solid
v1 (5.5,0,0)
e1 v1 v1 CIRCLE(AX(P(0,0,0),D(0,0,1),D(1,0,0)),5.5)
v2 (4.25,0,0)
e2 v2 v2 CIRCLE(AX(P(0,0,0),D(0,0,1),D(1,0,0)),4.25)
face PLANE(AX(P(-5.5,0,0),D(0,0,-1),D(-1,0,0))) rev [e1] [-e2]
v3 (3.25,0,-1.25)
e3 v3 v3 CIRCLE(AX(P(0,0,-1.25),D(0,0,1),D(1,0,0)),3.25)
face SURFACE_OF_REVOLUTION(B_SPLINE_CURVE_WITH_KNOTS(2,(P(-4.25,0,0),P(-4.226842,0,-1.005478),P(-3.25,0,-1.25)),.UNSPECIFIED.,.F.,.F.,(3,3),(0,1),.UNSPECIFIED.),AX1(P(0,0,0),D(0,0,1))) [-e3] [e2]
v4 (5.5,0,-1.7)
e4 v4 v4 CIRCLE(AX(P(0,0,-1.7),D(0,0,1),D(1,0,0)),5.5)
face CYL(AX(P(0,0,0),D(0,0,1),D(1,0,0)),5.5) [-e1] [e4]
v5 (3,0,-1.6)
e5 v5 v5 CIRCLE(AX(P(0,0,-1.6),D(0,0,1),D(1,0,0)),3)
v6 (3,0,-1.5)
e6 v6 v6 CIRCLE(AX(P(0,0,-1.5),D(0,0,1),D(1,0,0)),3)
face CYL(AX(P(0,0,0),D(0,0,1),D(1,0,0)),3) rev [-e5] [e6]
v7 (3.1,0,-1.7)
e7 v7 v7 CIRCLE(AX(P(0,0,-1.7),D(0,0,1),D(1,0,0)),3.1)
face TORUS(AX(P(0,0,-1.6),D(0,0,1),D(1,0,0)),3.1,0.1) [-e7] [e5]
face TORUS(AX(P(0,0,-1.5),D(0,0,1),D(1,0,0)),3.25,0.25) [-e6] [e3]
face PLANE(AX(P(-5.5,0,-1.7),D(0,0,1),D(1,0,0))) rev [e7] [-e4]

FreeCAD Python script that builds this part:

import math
import FreeCAD as App
import Part
import Sketcher

V = App.Vector

doc = App.newDocument("Part")
body = doc.addObject("PartDesign::Body", "Body")

# Sketch on XZ plane
sketch1 = doc.addObject("Sketcher::SketchObject", "Sketch")
body.addObject(sketch1)
sketch1.AttachmentSupport = (doc.XZ_Plane, [""])
sketch1.MapMode = "FlatFace"
sketch1.addGeometry([
    Part.LineSegment(V(-5.5, -1.7, 0), V(-5.5, 0, 0)),  # 0
    Part.LineSegment(V(-5.5, 0, 0), V(-4.25, 0, 0)),  # 1
    Part.BSplineCurve([V(-4.25, 0, 0), V(-4.226842, -1.005478, 0), V(-3.25, -1.25, 0)], [3, 3], [0, 1], False, 2, [1, 1, 1], False),  # 2
    Part.ArcOfCircle(Part.Circle(V(-3.25, -1.5, 0), V(0, 0, 1), 0.25), math.radians(0), math.radians(90)),  # 3
    Part.LineSegment(V(-3, -1.5, 0), V(-3, -1.6, 0)),  # 4
    Part.ArcOfCircle(Part.Circle(V(-3.1, -1.6, 0), V(0, 0, 1), 0.1), math.radians(-90), math.radians(0)),  # 5
    Part.LineSegment(V(-3.1, -1.7, 0), V(-5.5, -1.7, 0)),  # 6
], False)
sketch1.addConstraint([
    Sketcher.Constraint("Block", 2),
    Sketcher.Constraint("Coincident", 0, 2, 1, 1),
    Sketcher.Constraint("Coincident", 1, 2, 2, 1),
    Sketcher.Constraint("Coincident", 2, 2, 3, 2),
    Sketcher.Constraint("Tangent", 3, 1, 4, 1),
    Sketcher.Constraint("Tangent", 4, 2, 5, 2),
    Sketcher.Constraint("Tangent", 5, 1, 6, 1),
    Sketcher.Constraint("Coincident", 6, 2, 0, 1),
    Sketcher.Constraint("Vertical", 0),
    Sketcher.Constraint("Horizontal", 1),
    Sketcher.Constraint("Vertical", 4),
    Sketcher.Constraint("Horizontal", 6),
    Sketcher.Constraint("Radius", 5, 0.1),
    Sketcher.Constraint("Radius", 3, 0.25),
    Sketcher.Constraint("DistanceX", 6, 2, 6, 1, 2.4),
    Sketcher.Constraint("DistanceY", 0, 1, 0, 2, 1.7),
    Sketcher.Constraint("DistanceX", 3, 1, -1, 1, 3.0),
])
revolution = doc.addObject("PartDesign::Revolution", "Revolution")
body.addObject(revolution)
revolution.Profile = sketch1
revolution.ReferenceAxis = (sketch1, ["V_Axis"])
revolution.Angle = 360

doc.recompute()
